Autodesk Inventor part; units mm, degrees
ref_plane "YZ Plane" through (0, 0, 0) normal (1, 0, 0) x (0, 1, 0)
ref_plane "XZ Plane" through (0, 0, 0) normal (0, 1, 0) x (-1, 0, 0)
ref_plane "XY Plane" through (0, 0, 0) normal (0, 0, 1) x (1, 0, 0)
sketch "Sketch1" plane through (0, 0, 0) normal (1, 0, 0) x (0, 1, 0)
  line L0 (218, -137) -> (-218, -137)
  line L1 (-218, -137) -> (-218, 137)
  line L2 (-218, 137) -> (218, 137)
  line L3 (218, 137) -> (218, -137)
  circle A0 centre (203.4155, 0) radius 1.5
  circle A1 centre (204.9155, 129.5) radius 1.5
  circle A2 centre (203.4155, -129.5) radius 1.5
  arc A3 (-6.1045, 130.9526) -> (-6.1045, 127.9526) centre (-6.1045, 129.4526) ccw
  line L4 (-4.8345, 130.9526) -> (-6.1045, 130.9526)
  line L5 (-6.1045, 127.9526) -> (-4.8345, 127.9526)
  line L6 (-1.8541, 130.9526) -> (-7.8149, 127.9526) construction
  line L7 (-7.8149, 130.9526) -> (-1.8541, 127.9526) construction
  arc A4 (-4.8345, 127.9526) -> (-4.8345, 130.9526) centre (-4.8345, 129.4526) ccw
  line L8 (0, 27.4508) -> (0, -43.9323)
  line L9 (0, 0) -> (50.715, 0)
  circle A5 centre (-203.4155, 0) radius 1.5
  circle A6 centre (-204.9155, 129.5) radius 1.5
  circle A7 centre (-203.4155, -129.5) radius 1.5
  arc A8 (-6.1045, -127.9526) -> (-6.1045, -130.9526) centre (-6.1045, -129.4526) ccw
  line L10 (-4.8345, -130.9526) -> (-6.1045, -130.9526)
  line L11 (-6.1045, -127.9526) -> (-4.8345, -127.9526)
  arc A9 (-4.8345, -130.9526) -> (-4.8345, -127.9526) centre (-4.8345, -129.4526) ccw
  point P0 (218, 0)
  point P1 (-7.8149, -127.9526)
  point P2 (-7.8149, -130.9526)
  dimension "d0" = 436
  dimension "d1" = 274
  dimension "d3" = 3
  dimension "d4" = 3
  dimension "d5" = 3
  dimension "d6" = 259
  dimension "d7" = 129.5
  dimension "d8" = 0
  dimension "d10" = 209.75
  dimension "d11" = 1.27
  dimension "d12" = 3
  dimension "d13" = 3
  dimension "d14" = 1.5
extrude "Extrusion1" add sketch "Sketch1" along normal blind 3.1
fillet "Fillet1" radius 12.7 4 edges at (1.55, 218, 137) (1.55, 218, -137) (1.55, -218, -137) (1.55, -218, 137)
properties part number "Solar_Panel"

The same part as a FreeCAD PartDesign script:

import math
import FreeCAD as App
import Part
import Sketcher


def edges_at(feature, points):
    """Names of the edges that pass closest to the given points."""
    edges = feature.Shape.Edges
    near = lambda p: min(range(len(edges)), key=lambda i: edges[i].distToShape(Part.Vertex(*p))[0])
    return sorted({f"Edge{near(p) + 1}" for p in points})

doc = App.newDocument("Part")
body = doc.addObject("PartDesign::Body", "Body")

sketch1 = body.newObject("Sketcher::SketchObject", "Sketch")
sketch1.AttachmentSupport = (doc.getObject("YZ_Plane"), [""])
sketch1.MapMode = "FlatFace"
sketch1.addGeometry([
    Part.LineSegment(App.Vector(-218, -137, 0), App.Vector(218, -137, 0)),
    Part.LineSegment(App.Vector(218, -137, 0), App.Vector(218, 137, 0)),
    Part.LineSegment(App.Vector(218, 137, 0), App.Vector(-218, 137, 0)),
    Part.LineSegment(App.Vector(-218, 137, 0), App.Vector(-218, -137, 0)),
    Part.Circle(App.Vector(-203.4155, -129.5, 0), App.Vector(0, 0, 1), 1.5),
    Part.ArcOfCircle(Part.Circle(App.Vector(-6.1045, -129.4526, 0), App.Vector(0, 0, 1), 1.5), math.radians(90), math.radians(270)),
    Part.LineSegment(App.Vector(-6.1045, -127.9526, 0), App.Vector(-4.8345, -127.9526, 0)),
    Part.ArcOfCircle(Part.Circle(App.Vector(-4.8345, -129.4526, 0), App.Vector(0, 0, 1), 1.5), math.radians(-90), math.radians(90)),
    Part.LineSegment(App.Vector(-4.8345, -130.9526, 0), App.Vector(-6.1045, -130.9526, 0)),
    Part.Circle(App.Vector(203.4155, -129.5, 0), App.Vector(0, 0, 1), 1.5),
    Part.Circle(App.Vector(-203.4155, 0, 0), App.Vector(0, 0, 1), 1.5),
    Part.Circle(App.Vector(-204.9155, 129.5, 0), App.Vector(0, 0, 1), 1.5),
    Part.ArcOfCircle(Part.Circle(App.Vector(-6.1045, 129.4526, 0), App.Vector(0, 0, 1), 1.5), math.radians(90), math.radians(270)),
    Part.LineSegment(App.Vector(-6.1045, 130.9526, 0), App.Vector(-4.8345, 130.9526, 0)),
    Part.ArcOfCircle(Part.Circle(App.Vector(-4.8345, 129.4526, 0), App.Vector(0, 0, 1), 1.5), math.radians(-90), math.radians(90)),
    Part.LineSegment(App.Vector(-4.8345, 127.9526, 0), App.Vector(-6.1045, 127.9526, 0)),
    Part.Circle(App.Vector(203.4155, 0, 0), App.Vector(0, 0, 1), 1.5),
    Part.Circle(App.Vector(204.9155, 129.5, 0), App.Vector(0, 0, 1), 1.5),
], False)
sketch1.addConstraint([
    Sketcher.Constraint("Coincident", 0, 2, 1, 1),
    Sketcher.Constraint("Coincident", 1, 2, 2, 1),
    Sketcher.Constraint("Coincident", 2, 2, 3, 1),
    Sketcher.Constraint("Coincident", 3, 2, 0, 1),
    Sketcher.Constraint("Tangent", 5, 1, 6, 1),
    Sketcher.Constraint("Tangent", 6, 2, 7, 2),
    Sketcher.Constraint("Tangent", 7, 1, 8, 1),
    Sketcher.Constraint("Tangent", 8, 2, 5, 2),
    Sketcher.Constraint("Tangent", 12, 1, 13, 1),
    Sketcher.Constraint("Tangent", 13, 2, 14, 2),
    Sketcher.Constraint("Tangent", 14, 1, 15, 1),
    Sketcher.Constraint("Tangent", 15, 2, 12, 2),
    Sketcher.Constraint("Horizontal", 0),
    Sketcher.Constraint("Vertical", 1),
    Sketcher.Constraint("Horizontal", 2),
    Sketcher.Constraint("Vertical", 3),
    Sketcher.Constraint("Horizontal", 6),
    Sketcher.Constraint("Horizontal", 8),
    Sketcher.Constraint("Horizontal", 13),
    Sketcher.Constraint("Horizontal", 15),
    Sketcher.Constraint("Equal", 4, 5),
    Sketcher.Constraint("Equal", 7, 9),
    Sketcher.Constraint("Equal", 9, 10),
    Sketcher.Constraint("Equal", 10, 11),
    Sketcher.Constraint("Equal", 11, 12),
    Sketcher.Constraint("Equal", 14, 16),
    Sketcher.Constraint("Equal", 16, 17),
    Sketcher.Constraint("Symmetric", 10, 3, 16, 3, -1, 1),
    Sketcher.Constraint("Symmetric", 0, 2, 2, 2, -1, 1),
    Sketcher.Constraint("Symmetric", 4, 3, 9, 3, -2),
    Sketcher.Constraint("Symmetric", 11, 3, 17, 3, -2),
    Sketcher.Constraint("Symmetric", 5, 3, 12, 3, -1),
    Sketcher.Constraint("PointOnObject", 10, 3, -1),
    Sketcher.Constraint("Vertical", 4, 3, 10, 3),
    Sketcher.Constraint("Vertical", 7, 3, 14, 3),
    Sketcher.Constraint("Diameter", 4, 3.0),
    Sketcher.Constraint("DistanceX", 0, 1, 0, 2, 436.0),
    Sketcher.Constraint("DistanceY", 1, 1, 1, 2, 274.0),
    Sketcher.Constraint("DistanceY", 4, 3, 11, 3, 259.0),
    Sketcher.Constraint("DistanceX", 6, 1, 6, 2, 1.27),
    Sketcher.Constraint("DistanceY", 4, 3, -1, 1, 129.5),
    Sketcher.Constraint("DistanceX", 11, 3, 10, 3, 1.5),
    Sketcher.Constraint("DistanceX", 14, 3, 17, 3, 209.75),
    Sketcher.Constraint("DistanceX", 4, 3, 5, 3, 197.311),
    Sketcher.Constraint("DistanceY", 5, 3, -1, 1, 129.4526),
])
pad1 = body.newObject("PartDesign::Pad", "Pad")
pad1.Profile = sketch1
pad1.Length = 3.1
doc.recompute()

fillet = body.newObject("PartDesign::Fillet", "Fillet")
fillet.Base = (pad1, edges_at(pad1, [
    (1.55, 218, 137),
    (1.55, 218, -137),
    (1.55, -218, -137),
    (1.55, -218, 137),
]))
fillet.Radius = 12.7

doc.recompute()
